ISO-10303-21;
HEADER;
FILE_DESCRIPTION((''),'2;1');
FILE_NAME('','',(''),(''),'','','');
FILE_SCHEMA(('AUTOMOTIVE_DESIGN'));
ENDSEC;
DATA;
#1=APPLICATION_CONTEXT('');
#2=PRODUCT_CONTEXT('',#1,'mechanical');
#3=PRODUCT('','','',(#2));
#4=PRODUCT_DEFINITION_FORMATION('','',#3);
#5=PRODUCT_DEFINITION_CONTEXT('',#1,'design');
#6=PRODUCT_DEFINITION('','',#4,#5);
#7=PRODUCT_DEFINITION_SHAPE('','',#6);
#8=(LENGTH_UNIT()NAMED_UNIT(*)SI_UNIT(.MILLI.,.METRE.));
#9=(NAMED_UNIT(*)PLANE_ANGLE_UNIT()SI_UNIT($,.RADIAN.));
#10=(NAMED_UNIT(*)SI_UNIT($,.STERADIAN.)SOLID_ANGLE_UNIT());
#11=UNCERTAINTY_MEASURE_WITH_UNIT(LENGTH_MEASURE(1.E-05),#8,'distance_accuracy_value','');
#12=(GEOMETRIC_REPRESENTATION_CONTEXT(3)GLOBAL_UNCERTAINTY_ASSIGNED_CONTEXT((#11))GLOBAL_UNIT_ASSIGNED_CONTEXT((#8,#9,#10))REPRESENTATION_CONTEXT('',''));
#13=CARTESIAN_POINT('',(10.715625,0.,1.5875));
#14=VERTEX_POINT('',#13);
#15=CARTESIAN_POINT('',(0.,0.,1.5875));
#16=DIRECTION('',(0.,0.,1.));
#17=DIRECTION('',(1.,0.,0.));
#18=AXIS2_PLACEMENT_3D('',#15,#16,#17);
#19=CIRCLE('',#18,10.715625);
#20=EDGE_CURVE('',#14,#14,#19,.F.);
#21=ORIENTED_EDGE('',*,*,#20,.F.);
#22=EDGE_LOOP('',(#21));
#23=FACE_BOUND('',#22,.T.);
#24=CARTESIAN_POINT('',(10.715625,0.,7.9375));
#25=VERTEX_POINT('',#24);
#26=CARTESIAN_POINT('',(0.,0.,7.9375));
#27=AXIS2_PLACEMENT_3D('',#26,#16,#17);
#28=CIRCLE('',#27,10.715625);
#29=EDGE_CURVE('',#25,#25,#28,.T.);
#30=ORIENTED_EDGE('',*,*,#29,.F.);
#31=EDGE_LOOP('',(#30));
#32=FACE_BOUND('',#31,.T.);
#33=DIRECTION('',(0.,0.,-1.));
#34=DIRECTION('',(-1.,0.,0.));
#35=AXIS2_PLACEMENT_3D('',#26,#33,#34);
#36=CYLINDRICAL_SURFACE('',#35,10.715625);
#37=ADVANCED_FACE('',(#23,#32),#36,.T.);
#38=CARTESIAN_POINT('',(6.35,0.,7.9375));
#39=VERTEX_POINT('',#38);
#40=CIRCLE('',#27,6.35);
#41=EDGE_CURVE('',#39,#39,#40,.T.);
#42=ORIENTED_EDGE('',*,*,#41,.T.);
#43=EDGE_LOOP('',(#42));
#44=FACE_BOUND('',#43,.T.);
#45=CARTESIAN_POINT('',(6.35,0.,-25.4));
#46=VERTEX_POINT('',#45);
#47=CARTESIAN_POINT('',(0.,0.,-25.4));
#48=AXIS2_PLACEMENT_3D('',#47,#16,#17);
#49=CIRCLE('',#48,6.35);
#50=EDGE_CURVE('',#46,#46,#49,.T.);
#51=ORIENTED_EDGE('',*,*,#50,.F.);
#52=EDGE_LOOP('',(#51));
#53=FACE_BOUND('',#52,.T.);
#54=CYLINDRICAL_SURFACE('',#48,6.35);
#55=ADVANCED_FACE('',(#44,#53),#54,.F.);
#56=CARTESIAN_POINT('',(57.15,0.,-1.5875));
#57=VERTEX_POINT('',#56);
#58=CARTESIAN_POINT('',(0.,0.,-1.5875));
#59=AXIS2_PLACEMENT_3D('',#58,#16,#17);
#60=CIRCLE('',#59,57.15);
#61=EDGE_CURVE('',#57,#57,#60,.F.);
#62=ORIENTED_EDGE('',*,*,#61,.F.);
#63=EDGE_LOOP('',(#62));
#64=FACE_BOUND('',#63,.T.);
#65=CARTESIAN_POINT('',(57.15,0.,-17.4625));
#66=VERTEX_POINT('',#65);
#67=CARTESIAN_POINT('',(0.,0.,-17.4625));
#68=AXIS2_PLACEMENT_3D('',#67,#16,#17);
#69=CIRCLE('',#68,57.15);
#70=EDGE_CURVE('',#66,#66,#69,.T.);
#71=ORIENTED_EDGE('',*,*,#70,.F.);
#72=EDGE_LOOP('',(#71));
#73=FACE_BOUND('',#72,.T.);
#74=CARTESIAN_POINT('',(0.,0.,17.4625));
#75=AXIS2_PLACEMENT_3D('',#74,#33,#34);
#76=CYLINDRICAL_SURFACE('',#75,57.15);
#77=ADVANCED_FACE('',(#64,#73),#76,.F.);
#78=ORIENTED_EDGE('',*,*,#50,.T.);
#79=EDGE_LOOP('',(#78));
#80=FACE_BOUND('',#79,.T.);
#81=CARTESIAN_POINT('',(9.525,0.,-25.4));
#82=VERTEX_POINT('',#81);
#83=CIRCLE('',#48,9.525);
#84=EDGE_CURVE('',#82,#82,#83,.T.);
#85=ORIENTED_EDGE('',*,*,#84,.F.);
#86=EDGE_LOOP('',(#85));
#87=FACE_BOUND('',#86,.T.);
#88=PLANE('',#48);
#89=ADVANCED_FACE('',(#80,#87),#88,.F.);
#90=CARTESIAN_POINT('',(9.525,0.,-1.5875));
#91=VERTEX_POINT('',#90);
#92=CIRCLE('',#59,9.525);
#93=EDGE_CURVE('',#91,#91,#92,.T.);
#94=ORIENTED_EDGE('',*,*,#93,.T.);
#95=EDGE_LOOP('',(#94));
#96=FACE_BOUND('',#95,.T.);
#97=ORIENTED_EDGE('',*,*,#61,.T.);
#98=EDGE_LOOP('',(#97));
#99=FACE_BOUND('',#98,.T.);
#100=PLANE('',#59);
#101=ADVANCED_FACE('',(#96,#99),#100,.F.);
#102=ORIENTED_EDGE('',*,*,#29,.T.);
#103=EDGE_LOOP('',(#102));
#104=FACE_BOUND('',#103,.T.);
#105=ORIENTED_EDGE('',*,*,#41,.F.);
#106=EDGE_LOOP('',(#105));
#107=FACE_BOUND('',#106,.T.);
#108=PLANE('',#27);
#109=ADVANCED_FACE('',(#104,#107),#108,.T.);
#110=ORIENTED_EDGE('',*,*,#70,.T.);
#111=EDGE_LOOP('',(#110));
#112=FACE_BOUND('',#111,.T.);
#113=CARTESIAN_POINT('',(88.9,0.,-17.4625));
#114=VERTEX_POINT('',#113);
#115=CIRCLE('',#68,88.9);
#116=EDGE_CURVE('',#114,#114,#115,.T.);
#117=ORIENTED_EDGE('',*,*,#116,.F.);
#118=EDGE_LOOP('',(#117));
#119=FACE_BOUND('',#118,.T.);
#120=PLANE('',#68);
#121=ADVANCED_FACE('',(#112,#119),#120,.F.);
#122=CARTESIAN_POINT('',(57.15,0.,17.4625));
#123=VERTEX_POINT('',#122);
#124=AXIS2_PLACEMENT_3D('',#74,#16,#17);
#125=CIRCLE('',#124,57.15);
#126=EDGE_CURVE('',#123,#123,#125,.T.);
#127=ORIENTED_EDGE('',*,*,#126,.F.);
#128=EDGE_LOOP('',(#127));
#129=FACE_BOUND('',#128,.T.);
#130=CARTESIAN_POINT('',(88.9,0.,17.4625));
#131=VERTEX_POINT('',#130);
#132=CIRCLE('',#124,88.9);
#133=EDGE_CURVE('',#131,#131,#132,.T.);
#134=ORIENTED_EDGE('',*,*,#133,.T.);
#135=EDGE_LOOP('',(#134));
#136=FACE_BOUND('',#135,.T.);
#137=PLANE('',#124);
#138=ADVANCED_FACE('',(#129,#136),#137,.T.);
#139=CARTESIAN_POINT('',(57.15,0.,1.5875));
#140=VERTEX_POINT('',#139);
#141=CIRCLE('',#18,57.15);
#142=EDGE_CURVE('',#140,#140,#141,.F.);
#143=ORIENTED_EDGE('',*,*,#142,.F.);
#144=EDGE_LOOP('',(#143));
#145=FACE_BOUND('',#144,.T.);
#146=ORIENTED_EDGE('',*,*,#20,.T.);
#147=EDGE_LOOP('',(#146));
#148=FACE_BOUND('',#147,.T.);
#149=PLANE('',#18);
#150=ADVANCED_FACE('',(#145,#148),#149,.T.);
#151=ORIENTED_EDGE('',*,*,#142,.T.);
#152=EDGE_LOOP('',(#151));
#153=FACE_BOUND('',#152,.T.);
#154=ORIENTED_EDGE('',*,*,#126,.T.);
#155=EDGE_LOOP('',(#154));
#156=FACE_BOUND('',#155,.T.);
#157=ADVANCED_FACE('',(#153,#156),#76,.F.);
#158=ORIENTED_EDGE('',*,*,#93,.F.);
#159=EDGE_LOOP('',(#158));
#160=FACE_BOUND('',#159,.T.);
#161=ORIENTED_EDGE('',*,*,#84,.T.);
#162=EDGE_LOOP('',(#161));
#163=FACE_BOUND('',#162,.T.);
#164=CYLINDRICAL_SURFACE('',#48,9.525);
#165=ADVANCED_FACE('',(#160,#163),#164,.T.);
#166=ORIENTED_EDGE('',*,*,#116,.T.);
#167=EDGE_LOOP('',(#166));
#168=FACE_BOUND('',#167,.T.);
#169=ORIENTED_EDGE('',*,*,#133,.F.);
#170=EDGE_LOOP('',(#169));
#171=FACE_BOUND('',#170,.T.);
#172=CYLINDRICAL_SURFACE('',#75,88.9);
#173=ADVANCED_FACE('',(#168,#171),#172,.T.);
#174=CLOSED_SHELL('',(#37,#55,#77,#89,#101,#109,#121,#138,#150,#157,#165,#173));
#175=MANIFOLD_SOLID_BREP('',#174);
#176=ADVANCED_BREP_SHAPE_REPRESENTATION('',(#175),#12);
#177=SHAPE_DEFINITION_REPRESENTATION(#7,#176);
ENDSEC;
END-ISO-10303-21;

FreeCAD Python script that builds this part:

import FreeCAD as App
import Part
import Sketcher
from FreeCAD import Vector
Q = App.Units.Quantity

doc = App.newDocument("Part")
params = doc.addObject("Spreadsheet::Sheet", "Params")
for row, (alias, value) in enumerate([
    ("sketch1_diameter", "7 in"),
    ("sketch1_diameter2", "5.5 in"),
    ("pad1_length", "1.375 in"),
    ("sketch2_diameter", "5.5 in"),
    ("pad2_length", "0.125 in"),
    ("sketch3_diameter", "5.5 in"),
    ("sketch3_diameter2", "4.5 in"),
    ("pad3_length", "1.375 in"),
    ("sketch4_diameter", "0.84375 in"),
    ("pad4_length", "0.3125 in"),
    ("sketch5_diameter", "0.75 in"),
    ("pad5_length", "1 in"),
    ("sketch6_diameter", "0.5 in"),
], start=1):
    params.set(f"A{row}", alias)
    params.set(f"B{row}", "=" + value)
    params.setAlias(f"B{row}", alias)

body = doc.addObject("PartDesign::Body", "Body")

sketch1 = body.newObject("Sketcher::SketchObject", "Sketch")
sketch1.AttachmentSupport = (doc.getObject("XY_Plane"), [""])
sketch1.MapMode = "FlatFace"
sketch1.addGeometry(Part.Circle(Vector(0, 0, 0), Vector(0, 0, 1), 88.9), False)
sketch1.addGeometry(Part.Circle(Vector(0, 0, 0), Vector(0, 0, 1), 69.85), False)
sketch1.addConstraint(Sketcher.Constraint("Coincident", 0, 3, -1, 1))
sketch1.addConstraint(Sketcher.Constraint("Coincident", 1, 3, -1, 1))
sketch1.addConstraint(Sketcher.Constraint("Diameter", 0, Q("7 in")))
sketch1.addConstraint(Sketcher.Constraint("Diameter", 1, Q("5.5 in")))
sketch1.setExpression("Constraints[2]", "Params.sketch1_diameter")
sketch1.setExpression("Constraints[3]", "Params.sketch1_diameter2")
pad1 = body.newObject("PartDesign::Pad", "Pad")
pad1.Profile = sketch1
pad1.setExpression("Length", "Params.pad1_length")
pad1.Midplane = True

sketch2 = body.newObject("Sketcher::SketchObject", "Sketch001")
sketch2.AttachmentSupport = (doc.getObject("XY_Plane"), [""])
sketch2.MapMode = "FlatFace"
sketch2.addGeometry(Part.Circle(Vector(0, 0, 0), Vector(0, 0, 1), 69.85), False)
sketch2.addConstraint(Sketcher.Constraint("Coincident", 0, 3, -1, 1))
sketch2.addConstraint(Sketcher.Constraint("Diameter", 0, Q("5.5 in")))
sketch2.setExpression("Constraints[1]", "Params.sketch2_diameter")
pad2 = body.newObject("PartDesign::Pad", "Pad001")
pad2.Profile = sketch2
pad2.setExpression("Length", "Params.pad2_length")
pad2.Midplane = True
body2 = doc.addObject("PartDesign::Body", "Body001")

sketch3 = body2.newObject("Sketcher::SketchObject", "Sketch002")
sketch3.AttachmentSupport = (doc.getObject("XY_Plane001"), [""])
sketch3.MapMode = "FlatFace"
sketch3.addGeometry(Part.Circle(Vector(0, 0, 0), Vector(0, 0, 1), 69.85), False)
sketch3.addGeometry(Part.Circle(Vector(0, 0, 0), Vector(0, 0, 1), 57.15), False)
sketch3.addConstraint(Sketcher.Constraint("Coincident", 0, 3, -1, 1))
sketch3.addConstraint(Sketcher.Constraint("Coincident", 1, 3, -1, 1))
sketch3.addConstraint(Sketcher.Constraint("Diameter", 0, Q("5.5 in")))
sketch3.addConstraint(Sketcher.Constraint("Diameter", 1, Q("4.5 in")))
sketch3.setExpression("Constraints[2]", "Params.sketch3_diameter")
sketch3.setExpression("Constraints[3]", "Params.sketch3_diameter2")
pad3 = body2.newObject("PartDesign::Pad", "Pad002")
pad3.Profile = sketch3
pad3.setExpression("Length", "Params.pad3_length")
pad3.Midplane = True
doc.recompute()

boolean = body.newObject("PartDesign::Boolean", "Boolean")
boolean.Type = "Fuse"
boolean.addObjects([body2])

sketch4 = body.newObject("Sketcher::SketchObject", "Sketch003")
sketch4.AttachmentSupport = (doc.getObject("XY_Plane"), [""])
sketch4.MapMode = "FlatFace"
sketch4.addGeometry(Part.Circle(Vector(0, 0, 0), Vector(0, 0, 1), 10.715625), False)
sketch4.addConstraint(Sketcher.Constraint("Coincident", 0, 3, -1, 1))
sketch4.addConstraint(Sketcher.Constraint("Diameter", 0, Q("0.84375 in")))
sketch4.setExpression("Constraints[1]", "Params.sketch4_diameter")
pad4 = body.newObject("PartDesign::Pad", "Pad003")
pad4.Profile = sketch4
pad4.setExpression("Length", "Params.pad4_length")

sketch5 = body.newObject("Sketcher::SketchObject", "Sketch004")
sketch5.AttachmentSupport = (doc.getObject("XY_Plane"), [""])
sketch5.MapMode = "FlatFace"
sketch5.addGeometry(Part.Circle(Vector(0, 0, 0), Vector(0, 0, 1), 9.525), False)
sketch5.addConstraint(Sketcher.Constraint("Coincident", 0, 3, -1, 1))
sketch5.addConstraint(Sketcher.Constraint("Diameter", 0, Q("0.75 in")))
sketch5.setExpression("Constraints[1]", "Params.sketch5_diameter")
pad5 = body.newObject("PartDesign::Pad", "Pad004")
pad5.Profile = sketch5
pad5.setExpression("Length", "Params.pad5_length")
pad5.Reversed = True

sketch6 = body.newObject("Sketcher::SketchObject", "Sketch005")
sketch6.AttachmentSupport = (doc.getObject("XY_Plane"), [""])
sketch6.MapMode = "FlatFace"
sketch6.addGeometry(Part.Circle(Vector(0, 0, 0), Vector(0, 0, 1), 6.35), False)
sketch6.addConstraint(Sketcher.Constraint("Coincident", 0, 3, -1, 1))
sketch6.addConstraint(Sketcher.Constraint("Diameter", 0, Q("0.5 in")))
sketch6.setExpression("Constraints[1]", "Params.sketch6_diameter")
pocket1 = body.newObject("PartDesign::Pocket", "Pocket")
pocket1.Profile = sketch6
pocket1.Type = "ThroughAll"
pocket1.Midplane = True

doc.recompute()
